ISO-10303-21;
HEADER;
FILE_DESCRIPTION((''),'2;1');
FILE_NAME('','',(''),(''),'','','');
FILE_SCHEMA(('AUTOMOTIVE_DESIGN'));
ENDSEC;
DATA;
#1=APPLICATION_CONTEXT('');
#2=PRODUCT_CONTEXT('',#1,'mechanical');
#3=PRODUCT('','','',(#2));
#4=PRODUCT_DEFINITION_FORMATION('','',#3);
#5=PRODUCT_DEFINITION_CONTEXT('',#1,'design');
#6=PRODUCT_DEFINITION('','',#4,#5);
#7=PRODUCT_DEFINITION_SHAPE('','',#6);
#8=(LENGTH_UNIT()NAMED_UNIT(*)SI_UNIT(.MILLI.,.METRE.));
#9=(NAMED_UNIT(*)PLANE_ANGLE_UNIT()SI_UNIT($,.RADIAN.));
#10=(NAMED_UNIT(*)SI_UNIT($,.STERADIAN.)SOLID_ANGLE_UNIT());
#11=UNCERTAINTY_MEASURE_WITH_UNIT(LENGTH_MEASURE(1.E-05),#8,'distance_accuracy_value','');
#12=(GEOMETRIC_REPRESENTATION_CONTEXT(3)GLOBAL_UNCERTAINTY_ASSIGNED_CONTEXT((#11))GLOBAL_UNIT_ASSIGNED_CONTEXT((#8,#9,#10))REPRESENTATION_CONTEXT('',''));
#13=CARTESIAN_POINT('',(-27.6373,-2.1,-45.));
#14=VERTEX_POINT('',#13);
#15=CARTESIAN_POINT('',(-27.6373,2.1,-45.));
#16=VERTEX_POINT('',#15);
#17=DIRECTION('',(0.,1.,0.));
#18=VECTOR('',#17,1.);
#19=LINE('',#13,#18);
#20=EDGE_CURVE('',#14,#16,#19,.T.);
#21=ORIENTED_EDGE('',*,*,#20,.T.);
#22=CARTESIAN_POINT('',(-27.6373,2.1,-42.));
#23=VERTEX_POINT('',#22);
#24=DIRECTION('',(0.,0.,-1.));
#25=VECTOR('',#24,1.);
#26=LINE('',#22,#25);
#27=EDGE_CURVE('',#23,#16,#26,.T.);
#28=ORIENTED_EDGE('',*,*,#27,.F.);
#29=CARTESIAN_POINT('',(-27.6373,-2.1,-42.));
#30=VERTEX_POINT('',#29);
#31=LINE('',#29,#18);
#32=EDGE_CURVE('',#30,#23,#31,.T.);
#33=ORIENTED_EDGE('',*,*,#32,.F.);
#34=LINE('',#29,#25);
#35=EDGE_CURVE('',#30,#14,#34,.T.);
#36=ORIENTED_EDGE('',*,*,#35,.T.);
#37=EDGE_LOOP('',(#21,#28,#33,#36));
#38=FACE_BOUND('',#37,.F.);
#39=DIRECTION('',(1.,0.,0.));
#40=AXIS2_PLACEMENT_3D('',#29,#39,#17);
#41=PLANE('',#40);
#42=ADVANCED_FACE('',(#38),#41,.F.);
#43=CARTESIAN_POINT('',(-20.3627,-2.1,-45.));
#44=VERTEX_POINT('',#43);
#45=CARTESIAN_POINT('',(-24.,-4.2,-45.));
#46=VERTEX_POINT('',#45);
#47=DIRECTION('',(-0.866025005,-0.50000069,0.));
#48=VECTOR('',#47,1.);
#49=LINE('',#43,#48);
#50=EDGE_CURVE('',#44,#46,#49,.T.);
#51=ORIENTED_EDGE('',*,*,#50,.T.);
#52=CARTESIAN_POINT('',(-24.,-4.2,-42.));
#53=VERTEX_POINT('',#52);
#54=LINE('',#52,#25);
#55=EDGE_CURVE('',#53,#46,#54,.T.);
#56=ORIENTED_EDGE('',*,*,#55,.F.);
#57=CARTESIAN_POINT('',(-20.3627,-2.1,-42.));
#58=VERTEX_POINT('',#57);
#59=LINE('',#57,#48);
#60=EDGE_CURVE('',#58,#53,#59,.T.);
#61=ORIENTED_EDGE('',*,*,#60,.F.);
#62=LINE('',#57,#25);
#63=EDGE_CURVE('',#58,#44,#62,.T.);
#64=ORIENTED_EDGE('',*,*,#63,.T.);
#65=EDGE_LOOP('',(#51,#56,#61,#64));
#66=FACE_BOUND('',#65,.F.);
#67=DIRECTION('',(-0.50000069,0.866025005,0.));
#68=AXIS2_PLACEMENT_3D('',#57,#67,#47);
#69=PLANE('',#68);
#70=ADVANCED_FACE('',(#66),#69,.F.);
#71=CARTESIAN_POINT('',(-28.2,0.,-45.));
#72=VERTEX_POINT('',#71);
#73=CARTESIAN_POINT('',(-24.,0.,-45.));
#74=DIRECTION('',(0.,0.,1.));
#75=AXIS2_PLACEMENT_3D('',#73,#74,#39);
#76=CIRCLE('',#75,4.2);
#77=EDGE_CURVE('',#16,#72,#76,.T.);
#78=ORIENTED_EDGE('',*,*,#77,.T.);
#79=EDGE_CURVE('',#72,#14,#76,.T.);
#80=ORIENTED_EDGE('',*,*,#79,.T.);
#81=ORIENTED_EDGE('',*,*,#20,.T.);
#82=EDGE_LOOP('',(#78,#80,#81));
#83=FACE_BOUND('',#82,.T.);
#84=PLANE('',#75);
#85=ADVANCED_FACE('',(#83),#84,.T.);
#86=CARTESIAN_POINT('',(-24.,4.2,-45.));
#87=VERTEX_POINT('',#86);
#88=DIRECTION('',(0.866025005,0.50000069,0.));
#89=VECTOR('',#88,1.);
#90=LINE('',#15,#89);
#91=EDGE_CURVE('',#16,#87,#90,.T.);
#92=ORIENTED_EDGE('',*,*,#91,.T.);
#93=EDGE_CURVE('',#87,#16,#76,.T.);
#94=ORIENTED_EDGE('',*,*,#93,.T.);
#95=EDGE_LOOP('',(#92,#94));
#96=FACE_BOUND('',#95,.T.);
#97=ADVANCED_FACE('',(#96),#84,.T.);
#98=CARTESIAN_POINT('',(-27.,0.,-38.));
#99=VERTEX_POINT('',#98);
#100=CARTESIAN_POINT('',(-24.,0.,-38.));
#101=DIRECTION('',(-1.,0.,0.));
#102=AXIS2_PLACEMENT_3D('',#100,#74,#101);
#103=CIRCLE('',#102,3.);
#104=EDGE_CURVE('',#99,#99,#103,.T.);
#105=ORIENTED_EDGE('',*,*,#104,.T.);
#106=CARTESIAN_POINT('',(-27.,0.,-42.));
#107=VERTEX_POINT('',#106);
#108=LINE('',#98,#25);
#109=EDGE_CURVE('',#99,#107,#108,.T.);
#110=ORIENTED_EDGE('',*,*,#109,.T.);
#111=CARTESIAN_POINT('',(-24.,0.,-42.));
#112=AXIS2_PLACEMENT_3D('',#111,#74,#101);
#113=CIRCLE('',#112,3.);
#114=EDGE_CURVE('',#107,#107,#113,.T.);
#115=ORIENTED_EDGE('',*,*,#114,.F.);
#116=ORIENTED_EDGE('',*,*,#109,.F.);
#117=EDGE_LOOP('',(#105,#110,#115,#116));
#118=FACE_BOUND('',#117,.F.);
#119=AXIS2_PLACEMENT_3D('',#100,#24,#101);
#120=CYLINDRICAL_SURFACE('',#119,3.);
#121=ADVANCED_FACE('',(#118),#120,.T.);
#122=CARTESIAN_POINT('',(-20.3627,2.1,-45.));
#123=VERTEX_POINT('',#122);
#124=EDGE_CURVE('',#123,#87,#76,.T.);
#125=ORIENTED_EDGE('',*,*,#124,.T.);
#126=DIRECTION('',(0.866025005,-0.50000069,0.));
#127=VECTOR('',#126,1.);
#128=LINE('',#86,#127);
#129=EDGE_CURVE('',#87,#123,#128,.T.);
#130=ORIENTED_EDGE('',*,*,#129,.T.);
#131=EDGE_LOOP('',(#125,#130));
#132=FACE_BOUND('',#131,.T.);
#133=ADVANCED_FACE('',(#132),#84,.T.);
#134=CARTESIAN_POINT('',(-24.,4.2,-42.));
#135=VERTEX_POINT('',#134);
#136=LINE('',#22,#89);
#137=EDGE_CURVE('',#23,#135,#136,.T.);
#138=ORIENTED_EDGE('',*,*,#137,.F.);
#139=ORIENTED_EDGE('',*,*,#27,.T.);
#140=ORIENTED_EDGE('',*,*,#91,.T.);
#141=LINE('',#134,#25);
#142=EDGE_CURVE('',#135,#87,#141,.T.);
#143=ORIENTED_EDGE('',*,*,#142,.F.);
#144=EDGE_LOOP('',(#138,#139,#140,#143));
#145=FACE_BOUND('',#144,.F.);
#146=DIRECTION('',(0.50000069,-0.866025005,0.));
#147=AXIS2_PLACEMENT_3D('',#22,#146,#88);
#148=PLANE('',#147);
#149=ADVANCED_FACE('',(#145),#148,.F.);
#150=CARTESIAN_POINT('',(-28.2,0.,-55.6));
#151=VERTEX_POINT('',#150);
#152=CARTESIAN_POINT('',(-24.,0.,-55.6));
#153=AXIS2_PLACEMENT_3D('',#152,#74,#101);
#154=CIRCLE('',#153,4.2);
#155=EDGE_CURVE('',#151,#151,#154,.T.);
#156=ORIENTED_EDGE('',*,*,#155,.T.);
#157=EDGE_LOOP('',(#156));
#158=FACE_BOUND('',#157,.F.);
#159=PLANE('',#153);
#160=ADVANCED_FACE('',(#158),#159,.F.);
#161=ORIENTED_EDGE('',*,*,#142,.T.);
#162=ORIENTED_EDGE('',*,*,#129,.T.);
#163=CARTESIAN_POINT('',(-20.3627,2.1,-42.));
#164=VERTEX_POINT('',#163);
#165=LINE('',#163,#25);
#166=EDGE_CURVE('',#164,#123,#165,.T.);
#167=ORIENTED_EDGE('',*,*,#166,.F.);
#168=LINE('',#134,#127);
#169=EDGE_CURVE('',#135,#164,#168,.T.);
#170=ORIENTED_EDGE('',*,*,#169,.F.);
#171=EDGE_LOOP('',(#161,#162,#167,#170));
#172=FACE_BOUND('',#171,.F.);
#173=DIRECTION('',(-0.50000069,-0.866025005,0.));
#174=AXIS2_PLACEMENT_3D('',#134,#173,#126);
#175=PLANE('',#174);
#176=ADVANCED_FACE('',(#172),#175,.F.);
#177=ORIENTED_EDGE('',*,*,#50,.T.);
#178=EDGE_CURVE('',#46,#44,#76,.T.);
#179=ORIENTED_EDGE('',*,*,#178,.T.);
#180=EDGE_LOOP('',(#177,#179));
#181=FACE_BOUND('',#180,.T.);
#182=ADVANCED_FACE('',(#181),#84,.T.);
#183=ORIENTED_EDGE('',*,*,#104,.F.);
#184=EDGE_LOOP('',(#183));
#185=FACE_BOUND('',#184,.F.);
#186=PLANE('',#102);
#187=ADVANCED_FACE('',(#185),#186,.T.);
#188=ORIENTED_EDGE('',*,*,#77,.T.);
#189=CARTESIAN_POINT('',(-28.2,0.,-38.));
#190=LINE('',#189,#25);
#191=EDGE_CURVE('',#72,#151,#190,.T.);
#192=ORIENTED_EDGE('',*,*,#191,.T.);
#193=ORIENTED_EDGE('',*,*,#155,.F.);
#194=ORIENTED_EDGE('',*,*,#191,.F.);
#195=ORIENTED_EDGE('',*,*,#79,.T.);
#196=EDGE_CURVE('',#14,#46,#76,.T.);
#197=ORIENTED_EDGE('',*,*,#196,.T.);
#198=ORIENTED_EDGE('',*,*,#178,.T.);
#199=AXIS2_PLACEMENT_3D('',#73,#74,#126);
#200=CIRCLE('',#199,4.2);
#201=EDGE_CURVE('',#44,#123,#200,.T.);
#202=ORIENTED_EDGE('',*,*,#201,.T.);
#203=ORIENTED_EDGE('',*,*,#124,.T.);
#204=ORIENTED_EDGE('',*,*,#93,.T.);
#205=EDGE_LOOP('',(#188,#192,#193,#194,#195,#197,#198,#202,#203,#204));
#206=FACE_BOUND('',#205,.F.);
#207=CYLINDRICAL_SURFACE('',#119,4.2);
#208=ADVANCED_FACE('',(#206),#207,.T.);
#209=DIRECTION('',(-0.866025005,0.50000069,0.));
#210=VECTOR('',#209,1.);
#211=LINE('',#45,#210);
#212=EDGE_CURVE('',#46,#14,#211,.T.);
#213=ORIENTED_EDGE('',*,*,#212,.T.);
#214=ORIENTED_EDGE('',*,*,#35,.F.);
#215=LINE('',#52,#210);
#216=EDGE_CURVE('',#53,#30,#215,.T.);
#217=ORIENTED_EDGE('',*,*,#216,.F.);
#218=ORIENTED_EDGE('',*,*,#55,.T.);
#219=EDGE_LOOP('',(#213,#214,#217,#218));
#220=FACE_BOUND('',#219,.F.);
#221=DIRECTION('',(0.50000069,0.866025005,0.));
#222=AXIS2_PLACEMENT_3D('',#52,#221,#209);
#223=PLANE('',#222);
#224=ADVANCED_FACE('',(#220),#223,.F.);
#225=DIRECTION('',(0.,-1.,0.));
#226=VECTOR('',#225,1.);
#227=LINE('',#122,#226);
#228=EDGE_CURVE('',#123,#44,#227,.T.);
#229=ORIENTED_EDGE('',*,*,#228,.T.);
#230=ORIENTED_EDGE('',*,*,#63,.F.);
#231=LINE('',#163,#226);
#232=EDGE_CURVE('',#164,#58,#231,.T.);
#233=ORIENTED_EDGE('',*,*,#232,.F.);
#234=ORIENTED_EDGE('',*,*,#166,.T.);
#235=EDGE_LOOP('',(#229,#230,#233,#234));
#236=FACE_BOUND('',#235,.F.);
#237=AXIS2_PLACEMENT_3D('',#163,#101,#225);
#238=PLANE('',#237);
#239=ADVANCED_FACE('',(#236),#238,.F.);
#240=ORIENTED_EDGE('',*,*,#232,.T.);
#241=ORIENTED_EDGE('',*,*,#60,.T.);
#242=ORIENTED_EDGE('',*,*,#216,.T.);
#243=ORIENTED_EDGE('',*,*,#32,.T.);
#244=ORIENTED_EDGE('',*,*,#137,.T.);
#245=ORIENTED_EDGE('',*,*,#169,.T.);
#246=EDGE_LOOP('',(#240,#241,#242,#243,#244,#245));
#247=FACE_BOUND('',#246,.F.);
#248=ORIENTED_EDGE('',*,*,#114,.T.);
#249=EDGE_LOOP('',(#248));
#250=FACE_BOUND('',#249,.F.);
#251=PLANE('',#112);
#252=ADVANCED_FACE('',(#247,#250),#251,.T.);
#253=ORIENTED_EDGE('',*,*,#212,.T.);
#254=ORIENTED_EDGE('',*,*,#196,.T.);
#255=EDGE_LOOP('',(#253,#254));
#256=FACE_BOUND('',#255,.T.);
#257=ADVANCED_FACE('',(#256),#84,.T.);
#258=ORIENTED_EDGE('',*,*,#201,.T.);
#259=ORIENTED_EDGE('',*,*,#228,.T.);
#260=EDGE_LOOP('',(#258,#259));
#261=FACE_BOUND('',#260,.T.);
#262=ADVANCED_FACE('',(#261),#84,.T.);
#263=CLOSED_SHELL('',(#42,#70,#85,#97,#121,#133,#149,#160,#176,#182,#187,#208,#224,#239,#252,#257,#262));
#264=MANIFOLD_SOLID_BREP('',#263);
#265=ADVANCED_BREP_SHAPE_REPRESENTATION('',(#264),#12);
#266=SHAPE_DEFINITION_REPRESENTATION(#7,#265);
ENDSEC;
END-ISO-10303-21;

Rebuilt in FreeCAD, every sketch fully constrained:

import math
import FreeCAD as App
import Part
import Sketcher
Q = App.Units.Quantity

doc = App.newDocument("Part")
params = doc.addObject("Spreadsheet::Sheet", "Params")
for row, (alias, value) in enumerate([
    ("sketch1_width", "3 mm"),
    ("sketch1_height", "4 mm"),
    ("sketch1_width2", "4.2 mm"),
    ("sketch1_height2", "17.6 mm"),
    ("revolution_angle", "360 deg"),
    ("sketch2_radius", "4.2 mm"),
    ("pocket1_length", "3 mm"),
], start=1):
    params.set(f"A{row}", alias)
    params.set(f"B{row}", "=" + value)
    params.setAlias(f"B{row}", alias)

body = doc.addObject("PartDesign::Body", "Body")

# Sketch on XZ plane
sketch1 = body.newObject("Sketcher::SketchObject", "Sketch")
sketch1.AttachmentSupport = (doc.getObject("XZ_Plane"), [""])
sketch1.MapMode = "FlatFace"
sketch1.addGeometry([
    Part.LineSegment(App.Vector(-27, -38, 0), App.Vector(-24, -38, 0)),  # 0
    Part.LineSegment(App.Vector(-24, -38, 0), App.Vector(-24, -55.6, 0)),  # 1
    Part.LineSegment(App.Vector(-24, -55.6, 0), App.Vector(-28.2, -55.6, 0)),  # 2
    Part.LineSegment(App.Vector(-28.2, -55.6, 0), App.Vector(-28.2, -42, 0)),  # 3
    Part.LineSegment(App.Vector(-28.2, -42, 0), App.Vector(-27, -42, 0)),  # 4
    Part.LineSegment(App.Vector(-27, -42, 0), App.Vector(-27, -38, 0)),  # 5
], False)
sketch1.addGeometry(Part.LineSegment(App.Vector(-24, -55.6, 0), App.Vector(-24, -38, 0)), True)  # axis
sketch1.addConstraint([
    Sketcher.Constraint("Coincident", 0, 2, 1, 1),
    Sketcher.Constraint("Coincident", 1, 2, 2, 1),
    Sketcher.Constraint("Coincident", 2, 2, 3, 1),
    Sketcher.Constraint("Coincident", 3, 2, 4, 1),
    Sketcher.Constraint("Coincident", 4, 2, 5, 1),
    Sketcher.Constraint("Coincident", 5, 2, 0, 1),
    Sketcher.Constraint("Horizontal", 0),
    Sketcher.Constraint("Vertical", 1),
    Sketcher.Constraint("Horizontal", 2),
    Sketcher.Constraint("Vertical", 3),
    Sketcher.Constraint("Horizontal", 4),
    Sketcher.Constraint("Vertical", 5),
    Sketcher.Constraint("Vertical", 6),
    Sketcher.Constraint("Coincident", 6, 1, 1, 2),
    Sketcher.Constraint("Horizontal", 5, 2, 6, 2),
    Sketcher.Constraint("DistanceX", 0, 1, 0, 2, Q("3 mm")),
    Sketcher.Constraint("DistanceY", 5, 1, 5, 2, Q("4 mm")),
    Sketcher.Constraint("DistanceX", 2, 2, 2, 1, Q("4.2 mm")),
    Sketcher.Constraint("DistanceY", 1, 2, 1, 1, Q("17.6 mm")),
    Sketcher.Constraint("DistanceX", 0, 2, -1, 1, Q("24 mm")),
    Sketcher.Constraint("DistanceY", 0, 2, -1, 1, Q("38 mm")),
])
sketch1.setExpression("Constraints[15]", "Params.sketch1_width")
sketch1.setExpression("Constraints[16]", "Params.sketch1_height")
sketch1.setExpression("Constraints[17]", "Params.sketch1_width2")
sketch1.setExpression("Constraints[18]", "Params.sketch1_height2")
revolution = body.newObject("PartDesign::Revolution", "Revolution")
revolution.Profile = sketch1
revolution.ReferenceAxis = (sketch1, ["Axis0"])
revolution.setExpression("Angle", "Params.revolution_angle")

# Sketch on XY plane
sketch2 = body.newObject("Sketcher::SketchObject", "Sketch001")
sketch2.AttachmentSupport = (doc.getObject("XY_Plane"), [""])
sketch2.MapMode = "FlatFace"
sketch2.AttachmentOffset = App.Placement(App.Vector(0, 0, -42), App.Rotation())
sketch2.addGeometry([
    Part.ArcOfCircle(Part.Circle(App.Vector(-24, 0, 0), App.Vector(0, 0, 1), 4.2), math.radians(-30), math.radians(30)),  # 0
    Part.LineSegment(App.Vector(-20.4, -2.1, 0), App.Vector(-20.4, 2.1, 0)),  # 1
    Part.LineSegment(App.Vector(-24, 4.2, 0), App.Vector(-20.4, 2.1, 0)),  # 2
    Part.ArcOfCircle(Part.Circle(App.Vector(-24, 0, 0), App.Vector(0, 0, 1), 4.2), math.radians(30), math.radians(90)),  # 3
    Part.ArcOfCircle(Part.Circle(App.Vector(-24, 0, 0), App.Vector(0, 0, 1), 4.2), math.radians(-90), math.radians(-30)),  # 4
    Part.LineSegment(App.Vector(-24, -4.2, 0), App.Vector(-20.4, -2.1, 0)),  # 5
    Part.LineSegment(App.Vector(-27.6, 2.1, 0), App.Vector(-24, 4.2, 0)),  # 6
    Part.ArcOfCircle(Part.Circle(App.Vector(-24, 0, 0), App.Vector(0, 0, 1), 4.2), math.radians(90), math.radians(150)),  # 7
    Part.ArcOfCircle(Part.Circle(App.Vector(-24, 0, 0), App.Vector(0, 0, 1), 4.2), math.radians(-150), math.radians(-90)),  # 8
    Part.LineSegment(App.Vector(-24, -4.2, 0), App.Vector(-27.6, -2.1, 0)),  # 9
    Part.LineSegment(App.Vector(-27.6, -2.1, 0), App.Vector(-27.6, 2.1, 0)),  # 10
    Part.ArcOfCircle(Part.Circle(App.Vector(-24, 0, 0), App.Vector(0, 0, 1), 4.2), math.radians(150), math.radians(210)),  # 11
], False)
sketch2.addConstraint([
    Sketcher.Constraint("Coincident", 0, 1, 1, 1),
    Sketcher.Constraint("Coincident", 1, 2, 0, 2),
    Sketcher.Constraint("Coincident", 2, 1, 3, 2),
    Sketcher.Constraint("Coincident", 3, 1, 2, 2),
    Sketcher.Constraint("Coincident", 4, 1, 5, 1),
    Sketcher.Constraint("Coincident", 5, 2, 4, 2),
    Sketcher.Constraint("Coincident", 6, 1, 7, 2),
    Sketcher.Constraint("Coincident", 7, 1, 6, 2),
    Sketcher.Constraint("Coincident", 8, 1, 9, 2),
    Sketcher.Constraint("Coincident", 9, 1, 8, 2),
    Sketcher.Constraint("Coincident", 10, 1, 11, 2),
    Sketcher.Constraint("Coincident", 11, 1, 10, 2),
    Sketcher.Constraint("Vertical", 1),
    Sketcher.Constraint("Vertical", 10),
    Sketcher.Constraint("Coincident", 3, 3, 0, 3),
    Sketcher.Constraint("Coincident", 4, 3, 0, 3),
    Sketcher.Constraint("Coincident", 7, 3, 0, 3),
    Sketcher.Constraint("Coincident", 8, 3, 0, 3),
    Sketcher.Constraint("Coincident", 11, 3, 0, 3),
    Sketcher.Constraint("Coincident", 3, 1, 1, 2),
    Sketcher.Constraint("Coincident", 5, 2, 0, 1),
    Sketcher.Constraint("Coincident", 7, 1, 2, 1),
    Sketcher.Constraint("Coincident", 9, 1, 4, 1),
    Sketcher.Constraint("Coincident", 10, 1, 8, 1),
    Sketcher.Constraint("Symmetric", 2, 1, 4, 1, -1),
    Sketcher.Constraint("Parallel", 5, 6),
    Sketcher.Constraint("Parallel", 2, 9),
    Sketcher.Constraint("Horizontal", 3, 1, 6, 1),
    Sketcher.Constraint("Radius", 0, Q("4.2 mm")),
    Sketcher.Constraint("Angle", 2, Q("-30 deg")),
    Sketcher.Constraint("DistanceX", 0, 3, -1, 1, Q("24 mm")),
])
sketch2.setExpression("Constraints[28]", "Params.sketch2_radius")
pocket1 = body.newObject("PartDesign::Pocket", "Pocket")
pocket1.Profile = sketch2
pocket1.setExpression("Length", "Params.pocket1_length")

doc.recompute()
